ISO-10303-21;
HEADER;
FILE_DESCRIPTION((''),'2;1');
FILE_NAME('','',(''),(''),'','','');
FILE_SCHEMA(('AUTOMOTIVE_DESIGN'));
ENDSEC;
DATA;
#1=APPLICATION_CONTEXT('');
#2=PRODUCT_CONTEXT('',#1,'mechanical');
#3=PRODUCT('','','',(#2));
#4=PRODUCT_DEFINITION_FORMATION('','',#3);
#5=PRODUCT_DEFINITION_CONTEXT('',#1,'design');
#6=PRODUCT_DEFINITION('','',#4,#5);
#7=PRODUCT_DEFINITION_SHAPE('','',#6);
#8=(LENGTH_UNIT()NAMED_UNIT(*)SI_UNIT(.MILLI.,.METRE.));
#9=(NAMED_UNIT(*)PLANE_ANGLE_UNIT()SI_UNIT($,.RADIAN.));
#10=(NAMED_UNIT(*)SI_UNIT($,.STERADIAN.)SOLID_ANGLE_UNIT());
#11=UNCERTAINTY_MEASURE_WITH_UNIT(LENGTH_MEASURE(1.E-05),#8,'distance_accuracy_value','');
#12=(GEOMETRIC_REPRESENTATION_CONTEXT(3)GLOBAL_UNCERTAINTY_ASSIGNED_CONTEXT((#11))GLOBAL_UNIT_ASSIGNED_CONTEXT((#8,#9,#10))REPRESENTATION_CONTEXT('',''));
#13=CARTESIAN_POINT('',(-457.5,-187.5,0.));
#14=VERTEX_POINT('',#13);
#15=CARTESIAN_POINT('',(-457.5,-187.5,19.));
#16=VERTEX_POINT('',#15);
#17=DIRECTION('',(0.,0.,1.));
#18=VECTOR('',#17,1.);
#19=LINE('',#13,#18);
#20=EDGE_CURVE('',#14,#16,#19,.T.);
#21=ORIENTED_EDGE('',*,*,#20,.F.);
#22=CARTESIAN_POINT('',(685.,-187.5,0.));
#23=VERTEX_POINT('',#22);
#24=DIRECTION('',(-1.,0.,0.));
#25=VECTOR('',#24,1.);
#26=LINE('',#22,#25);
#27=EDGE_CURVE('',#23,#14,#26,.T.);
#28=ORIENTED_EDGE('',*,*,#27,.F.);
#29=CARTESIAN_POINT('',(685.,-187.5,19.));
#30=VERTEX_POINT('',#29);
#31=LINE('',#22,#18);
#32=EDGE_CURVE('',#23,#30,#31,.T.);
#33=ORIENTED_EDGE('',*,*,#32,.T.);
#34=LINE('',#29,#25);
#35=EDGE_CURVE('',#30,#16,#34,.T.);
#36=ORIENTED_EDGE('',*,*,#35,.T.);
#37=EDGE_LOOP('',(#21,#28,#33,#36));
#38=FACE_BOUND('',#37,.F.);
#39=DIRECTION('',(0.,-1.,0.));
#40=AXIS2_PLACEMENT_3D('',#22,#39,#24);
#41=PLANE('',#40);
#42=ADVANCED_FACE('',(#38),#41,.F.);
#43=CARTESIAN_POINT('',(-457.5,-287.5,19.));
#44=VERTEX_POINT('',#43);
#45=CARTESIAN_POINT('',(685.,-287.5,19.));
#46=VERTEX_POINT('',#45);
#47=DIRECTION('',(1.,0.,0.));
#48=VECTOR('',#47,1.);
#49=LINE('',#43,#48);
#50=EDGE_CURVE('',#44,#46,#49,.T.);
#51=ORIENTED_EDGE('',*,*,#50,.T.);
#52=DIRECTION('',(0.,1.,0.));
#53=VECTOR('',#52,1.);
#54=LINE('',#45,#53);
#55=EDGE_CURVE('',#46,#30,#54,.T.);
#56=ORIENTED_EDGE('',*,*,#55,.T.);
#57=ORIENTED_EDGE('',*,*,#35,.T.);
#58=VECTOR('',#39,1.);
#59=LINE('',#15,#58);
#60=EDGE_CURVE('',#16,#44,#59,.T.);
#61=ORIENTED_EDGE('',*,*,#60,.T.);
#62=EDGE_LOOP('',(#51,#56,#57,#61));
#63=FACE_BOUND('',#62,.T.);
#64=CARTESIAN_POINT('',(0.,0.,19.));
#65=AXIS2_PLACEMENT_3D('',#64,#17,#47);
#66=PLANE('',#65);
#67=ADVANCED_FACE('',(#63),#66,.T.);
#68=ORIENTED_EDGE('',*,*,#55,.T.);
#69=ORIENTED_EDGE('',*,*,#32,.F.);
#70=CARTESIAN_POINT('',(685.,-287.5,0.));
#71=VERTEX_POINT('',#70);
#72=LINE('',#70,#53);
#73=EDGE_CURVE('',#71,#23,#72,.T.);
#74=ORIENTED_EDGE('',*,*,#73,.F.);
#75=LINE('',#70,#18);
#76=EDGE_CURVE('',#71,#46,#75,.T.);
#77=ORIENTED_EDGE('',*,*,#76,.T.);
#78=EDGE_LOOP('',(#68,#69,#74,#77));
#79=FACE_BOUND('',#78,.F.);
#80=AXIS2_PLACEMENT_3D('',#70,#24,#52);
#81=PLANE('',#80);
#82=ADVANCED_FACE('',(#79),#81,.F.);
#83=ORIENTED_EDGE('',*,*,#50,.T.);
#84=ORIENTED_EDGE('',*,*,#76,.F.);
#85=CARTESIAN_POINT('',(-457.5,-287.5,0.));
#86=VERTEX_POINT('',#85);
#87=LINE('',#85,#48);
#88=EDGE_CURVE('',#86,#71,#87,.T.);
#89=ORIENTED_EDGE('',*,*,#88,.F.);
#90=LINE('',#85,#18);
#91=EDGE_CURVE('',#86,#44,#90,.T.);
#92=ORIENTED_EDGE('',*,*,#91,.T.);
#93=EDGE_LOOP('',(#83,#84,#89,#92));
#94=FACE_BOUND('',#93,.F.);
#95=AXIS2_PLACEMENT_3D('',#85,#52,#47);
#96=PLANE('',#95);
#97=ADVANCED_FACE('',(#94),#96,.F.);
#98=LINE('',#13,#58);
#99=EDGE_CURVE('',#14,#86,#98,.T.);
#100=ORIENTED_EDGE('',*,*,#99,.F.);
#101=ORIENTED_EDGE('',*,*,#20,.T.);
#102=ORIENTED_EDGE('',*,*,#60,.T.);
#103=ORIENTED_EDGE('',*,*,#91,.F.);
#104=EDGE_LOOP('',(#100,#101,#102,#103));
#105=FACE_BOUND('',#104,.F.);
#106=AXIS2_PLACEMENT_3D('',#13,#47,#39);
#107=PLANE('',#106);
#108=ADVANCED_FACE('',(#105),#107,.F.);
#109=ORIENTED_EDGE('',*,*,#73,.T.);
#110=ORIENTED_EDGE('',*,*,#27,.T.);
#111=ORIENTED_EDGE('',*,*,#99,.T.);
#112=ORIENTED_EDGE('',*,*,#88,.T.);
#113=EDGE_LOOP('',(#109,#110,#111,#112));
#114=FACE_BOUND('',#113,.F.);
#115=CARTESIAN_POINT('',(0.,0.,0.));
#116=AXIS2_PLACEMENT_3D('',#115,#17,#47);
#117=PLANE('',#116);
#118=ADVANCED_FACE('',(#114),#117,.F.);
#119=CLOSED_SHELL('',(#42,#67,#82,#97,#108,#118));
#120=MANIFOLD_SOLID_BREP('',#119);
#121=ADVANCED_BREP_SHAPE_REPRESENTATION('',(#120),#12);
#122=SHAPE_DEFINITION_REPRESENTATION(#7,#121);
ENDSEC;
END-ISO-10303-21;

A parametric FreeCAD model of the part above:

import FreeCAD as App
import Part
import Sketcher

V = App.Vector


def add_polygon(sketch, points):
    """Adds a closed chain of lines whose ends are joined by coincident constraints."""
    first, n = sketch.GeometryCount, len(points)
    for a, b in zip(points, points[1:] + points[:1]):
        sketch.addGeometry(Part.LineSegment(App.Vector(*a, 0), App.Vector(*b, 0)), False)
    for i in range(n):
        sketch.addConstraint(Sketcher.Constraint("Coincident", first + i, 2, first + (i + 1) % n, 1))

doc = App.newDocument("Part")
params = doc.addObject("Spreadsheet::Sheet", "Params")
for row, (alias, value) in enumerate([
    ("sketch1_height", "100 mm"),
    ("sketch1_width", "1142.5 mm"),
    ("pad1_length", "19 mm"),
], start=1):
    params.set(f"A{row}", alias)
    params.set(f"B{row}", "=" + value)
    params.setAlias(f"B{row}", alias)

body = doc.addObject("PartDesign::Body", "Body")

# Sketch on XY plane
sketch1 = body.newObject("Sketcher::SketchObject", "Sketch")
sketch1.AttachmentSupport = (doc.getObject("XY_Plane"), [""])
sketch1.MapMode = "FlatFace"
add_polygon(sketch1, [(685, -287.5), (685, -187.5), (-457.5, -187.5), (-457.5, -287.5)])  # lines 0-3
sketch1.addConstraint([
    Sketcher.Constraint("Vertical", 0),
    Sketcher.Constraint("Horizontal", 1),
    Sketcher.Constraint("Vertical", 2),
    Sketcher.Constraint("Horizontal", 3),
    Sketcher.Constraint("DistanceY", 0, 1, 0, 2, 100.0),
    Sketcher.Constraint("DistanceX", 1, 2, 1, 1, 1142.5),
    Sketcher.Constraint("DistanceX", -1, 1, 0, 2, 685.0),
    Sketcher.Constraint("DistanceY", 0, 2, -1, 1, 187.5),
])
sketch1.setExpression("Constraints[8]", "Params.sketch1_height")
sketch1.setExpression("Constraints[9]", "Params.sketch1_width")
pad1 = body.newObject("PartDesign::Pad", "Pad")
pad1.Profile = sketch1
pad1.setExpression("Length", "Params.pad1_length")

doc.recompute()
